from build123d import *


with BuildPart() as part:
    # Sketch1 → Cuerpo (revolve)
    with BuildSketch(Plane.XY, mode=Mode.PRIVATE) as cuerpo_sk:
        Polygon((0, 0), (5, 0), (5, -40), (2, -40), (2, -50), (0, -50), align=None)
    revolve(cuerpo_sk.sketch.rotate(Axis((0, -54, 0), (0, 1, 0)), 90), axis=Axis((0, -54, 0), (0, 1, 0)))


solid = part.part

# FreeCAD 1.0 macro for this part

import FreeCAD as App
import Part
import Sketcher

V = App.Vector


def add_polygon(sketch, points):
    """Adds a closed chain of lines whose ends are joined by coincident constraints."""
    first, n = sketch.GeometryCount, len(points)
    for a, b in zip(points, points[1:] + points[:1]):
        sketch.addGeometry(Part.LineSegment(App.Vector(*a, 0), App.Vector(*b, 0)), False)
    for i in range(n):
        sketch.addConstraint(Sketcher.Constraint("Coincident", first + i, 2, first + (i + 1) % n, 1))

doc = App.newDocument("Part")
body = doc.addObject("PartDesign::Body", "Body")

# Sketch on XY plane
sketch1 = body.newObject("Sketcher::SketchObject", "Sketch")
sketch1.AttachmentSupport = (doc.getObject("XY_Plane"), [""])
sketch1.MapMode = "FlatFace"
add_polygon(sketch1, [(5, 0), (0, 0), (0, -50), (2, -50), (2, -40), (5, -40)])  # lines 0-5
sketch1.addConstraint([
    Sketcher.Constraint("Horizontal", 0),
    Sketcher.Constraint("Vertical", 1),
    Sketcher.Constraint("Horizontal", 2),
    Sketcher.Constraint("Vertical", 3),
    Sketcher.Constraint("Horizontal", 4),
    Sketcher.Constraint("Vertical", 5),
    Sketcher.Constraint("Coincident", 0, 2, -1, 1),
    Sketcher.Constraint("DistanceX", 0, 2, 0, 1, 5.0),
    Sketcher.Constraint("DistanceX", 2, 1, 2, 2, 2.0),
    Sketcher.Constraint("DistanceY", 1, 2, 1, 1, 50.0),
    Sketcher.Constraint("DistanceY", 3, 1, 3, 2, 10.0),
])
revolution = body.newObject("PartDesign::Revolution", "Revolution")
revolution.Profile = sketch1
revolution.ReferenceAxis = (sketch1, ["V_Axis"])
revolution.Angle = 360

doc.recompute()
